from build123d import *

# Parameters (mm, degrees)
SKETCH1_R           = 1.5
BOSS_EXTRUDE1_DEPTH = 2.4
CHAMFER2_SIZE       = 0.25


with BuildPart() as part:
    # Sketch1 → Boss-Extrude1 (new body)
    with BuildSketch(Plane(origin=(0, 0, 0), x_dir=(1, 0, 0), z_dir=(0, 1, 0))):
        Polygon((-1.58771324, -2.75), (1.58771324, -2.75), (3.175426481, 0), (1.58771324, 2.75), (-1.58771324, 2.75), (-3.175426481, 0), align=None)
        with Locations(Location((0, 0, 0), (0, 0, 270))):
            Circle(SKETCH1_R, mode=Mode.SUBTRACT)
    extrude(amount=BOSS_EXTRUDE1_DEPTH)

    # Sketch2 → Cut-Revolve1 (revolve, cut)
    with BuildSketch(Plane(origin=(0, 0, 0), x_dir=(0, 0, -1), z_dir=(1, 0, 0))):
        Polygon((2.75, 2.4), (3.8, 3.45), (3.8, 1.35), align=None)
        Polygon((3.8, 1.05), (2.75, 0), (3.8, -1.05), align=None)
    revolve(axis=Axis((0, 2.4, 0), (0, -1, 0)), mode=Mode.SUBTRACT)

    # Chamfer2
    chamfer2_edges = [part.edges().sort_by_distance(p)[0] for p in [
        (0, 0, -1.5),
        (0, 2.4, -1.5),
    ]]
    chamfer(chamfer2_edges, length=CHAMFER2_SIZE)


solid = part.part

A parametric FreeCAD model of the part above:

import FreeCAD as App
import Part
import Sketcher
Q = App.Units.Quantity


def edges_at(feature, points):
    """Names of the edges that pass closest to the given points."""
    edges = feature.Shape.Edges
    near = lambda p: min(range(len(edges)), key=lambda i: edges[i].distToShape(Part.Vertex(*p))[0])
    return sorted({f"Edge{near(p) + 1}" for p in points})

doc = App.newDocument("Part")
body = doc.addObject("PartDesign::Body", "Body")

# Sketch on XZ plane
sketch1 = body.newObject("Sketcher::SketchObject", "Sketch")
sketch1.AttachmentSupport = (doc.getObject("XZ_Plane"), [""])
sketch1.MapMode = "FlatFace"
sketch1.addGeometry(Part.LineSegment(App.Vector(-1.587713, 2.75, 0), App.Vector(1.587713, 2.75, 0)), False)
sketch1.addGeometry(Part.LineSegment(App.Vector(1.587713, 2.75, 0), App.Vector(3.175426, 0, 0)), False)
sketch1.addGeometry(Part.LineSegment(App.Vector(3.175426, 0, 0), App.Vector(1.587713, -2.75, 0)), False)
sketch1.addGeometry(Part.LineSegment(App.Vector(1.587713, -2.75, 0), App.Vector(-1.587713, -2.75, 0)), False)
sketch1.addGeometry(Part.LineSegment(App.Vector(-1.587713, -2.75, 0), App.Vector(-3.175426, 0, 0)), False)
sketch1.addGeometry(Part.LineSegment(App.Vector(-3.175426, 0, 0), App.Vector(-1.587713, 2.75, 0)), False)
sketch1.addGeometry(Part.Circle(App.Vector(0, 0, 0), App.Vector(0, 0, 1), 1.5), False)
sketch1.addConstraint(Sketcher.Constraint("Coincident", 0, 2, 1, 1))
sketch1.addConstraint(Sketcher.Constraint("Coincident", 1, 2, 2, 1))
sketch1.addConstraint(Sketcher.Constraint("Coincident", 2, 2, 3, 1))
sketch1.addConstraint(Sketcher.Constraint("Coincident", 3, 2, 4, 1))
sketch1.addConstraint(Sketcher.Constraint("Coincident", 4, 2, 5, 1))
sketch1.addConstraint(Sketcher.Constraint("Coincident", 5, 2, 0, 1))
sketch1.addConstraint(Sketcher.Constraint("Horizontal", 0))
sketch1.addConstraint(Sketcher.Constraint("Horizontal", 3))
sketch1.addConstraint(Sketcher.Constraint("Coincident", 6, 3, -1, 1))
sketch1.addConstraint(Sketcher.Constraint("Symmetric", 0, 2, 3, 2, -1, 1))
sketch1.addConstraint(Sketcher.Constraint("Symmetric", 1, 2, 4, 2, -1, 1))
sketch1.addConstraint(Sketcher.Constraint("PointOnObject", 1, 2, -1))
sketch1.addConstraint(Sketcher.Constraint("Parallel", 2, 5))
sketch1.addConstraint(Sketcher.Constraint("Vertical", 0, 2, 2, 2))
sketch1.addConstraint(Sketcher.Constraint("Diameter", 6, Q("3 mm")))
sketch1.addConstraint(Sketcher.Constraint("Angle", 1, Q("-60 deg")))
sketch1.addConstraint(Sketcher.Constraint("DistanceY", 2, 2, 0, 2, Q("5.5 mm")))
sketch1.addConstraint(Sketcher.Constraint("DistanceX", 0, 1, 0, 2, Q("3.175426 mm")))
pad1 = body.newObject("PartDesign::Pad", "Pad")
pad1.Profile = sketch1
pad1.Length = 2.4
pad1.Reversed = True

# Sketch on YZ plane
sketch2 = body.newObject("Sketcher::SketchObject", "Sketch001")
sketch2.AttachmentSupport = (doc.getObject("YZ_Plane"), [""])
sketch2.MapMode = "FlatFace"
sketch2.addGeometry(Part.LineSegment(App.Vector(3.45, -3.8, 0), App.Vector(2.4, -2.75, 0)), False)
sketch2.addGeometry(Part.LineSegment(App.Vector(2.4, -2.75, 0), App.Vector(1.35, -3.8, 0)), False)
sketch2.addGeometry(Part.LineSegment(App.Vector(1.35, -3.8, 0), App.Vector(3.45, -3.8, 0)), False)
sketch2.addGeometry(Part.LineSegment(App.Vector(1.05, -3.8, 0), App.Vector(0, -2.75, 0)), False)
sketch2.addGeometry(Part.LineSegment(App.Vector(0, -2.75, 0), App.Vector(-1.05, -3.8, 0)), False)
sketch2.addGeometry(Part.LineSegment(App.Vector(-1.05, -3.8, 0), App.Vector(1.05, -3.8, 0)), False)
sketch2.addConstraint(Sketcher.Constraint("Coincident", 0, 2, 1, 1))
sketch2.addConstraint(Sketcher.Constraint("Coincident", 1, 2, 2, 1))
sketch2.addConstraint(Sketcher.Constraint("Coincident", 2, 2, 0, 1))
sketch2.addConstraint(Sketcher.Constraint("Coincident", 3, 2, 4, 1))
sketch2.addConstraint(Sketcher.Constraint("Coincident", 4, 2, 5, 1))
sketch2.addConstraint(Sketcher.Constraint("Coincident", 5, 2, 3, 1))
sketch2.addConstraint(Sketcher.Constraint("Horizontal", 2))
sketch2.addConstraint(Sketcher.Constraint("Horizontal", 5))
sketch2.addConstraint(Sketcher.Constraint("PointOnObject", 3, 2, -2))
sketch2.addConstraint(Sketcher.Constraint("Perpendicular", 0, 1))
sketch2.addConstraint(Sketcher.Constraint("Perpendicular", 1, 3))
sketch2.addConstraint(Sketcher.Constraint("Perpendicular", 3, 4))
sketch2.addConstraint(Sketcher.Constraint("Horizontal", 0, 2, 3, 2))
sketch2.addConstraint(Sketcher.Constraint("Horizontal", 2, 2, 4, 2))
sketch2.addConstraint(Sketcher.Constraint("Equal", 0, 1))
sketch2.addConstraint(Sketcher.Constraint("DistanceX", 2, 1, 2, 2, Q("2.1 mm")))
sketch2.addConstraint(Sketcher.Constraint("DistanceX", -1, 1, 0, 2, Q("2.4 mm")))
sketch2.addConstraint(Sketcher.Constraint("DistanceY", 1, 2, -1, 1, Q("3.8 mm")))
groove = body.newObject("PartDesign::Groove", "Groove")
groove.Profile = sketch2
groove.ReferenceAxis = (sketch2, ["H_Axis"])
groove.Angle = 360
doc.recompute()

chamfer = body.newObject("PartDesign::Chamfer", "Chamfer")
chamfer.Base = (groove, edges_at(groove, [(0, 0, -1.5), (0, 2.4, -1.5)]))
chamfer.Size = 0.25

doc.recompute()
